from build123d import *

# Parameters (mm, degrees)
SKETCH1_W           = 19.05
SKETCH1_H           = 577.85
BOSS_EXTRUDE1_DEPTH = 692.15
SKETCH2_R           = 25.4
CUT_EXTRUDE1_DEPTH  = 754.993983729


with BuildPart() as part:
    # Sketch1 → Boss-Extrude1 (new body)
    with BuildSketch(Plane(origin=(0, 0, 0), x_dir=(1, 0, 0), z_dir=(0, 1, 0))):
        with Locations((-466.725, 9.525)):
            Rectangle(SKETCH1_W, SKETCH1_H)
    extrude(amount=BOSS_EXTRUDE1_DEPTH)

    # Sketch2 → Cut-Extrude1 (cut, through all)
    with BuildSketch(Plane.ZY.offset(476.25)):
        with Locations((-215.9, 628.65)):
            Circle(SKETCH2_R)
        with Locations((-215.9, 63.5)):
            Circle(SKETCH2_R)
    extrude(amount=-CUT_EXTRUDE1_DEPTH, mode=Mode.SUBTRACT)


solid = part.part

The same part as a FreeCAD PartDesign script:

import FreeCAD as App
import Part
import Sketcher

V = App.Vector
Q = App.Units.Quantity

doc = App.newDocument("Part")
body = doc.addObject("PartDesign::Body", "Body")

# Sketch on XZ plane
sketch1 = body.newObject("Sketcher::SketchObject", "Sketch")
sketch1.AttachmentSupport = (doc.getObject("XZ_Plane"), [""])
sketch1.MapMode = "FlatFace"
sketch1.addGeometry([
    Part.LineSegment(V(-476.25, -298.45, 0), V(-476.25, 279.4, 0)),
    Part.LineSegment(V(-476.25, 279.4, 0), V(-457.2, 279.4, 0)),
    Part.LineSegment(V(-457.2, 279.4, 0), V(-457.2, -298.45, 0)),
    Part.LineSegment(V(-457.2, -298.45, 0), V(-476.25, -298.45, 0)),
], False)
sketch1.addConstraint([
    Sketcher.Constraint("Coincident", 0, 2, 1, 1),
    Sketcher.Constraint("Coincident", 1, 2, 2, 1),
    Sketcher.Constraint("Coincident", 2, 2, 3, 1),
    Sketcher.Constraint("Coincident", 3, 2, 0, 1),
    Sketcher.Constraint("Vertical", 0),
    Sketcher.Constraint("Horizontal", 1),
    Sketcher.Constraint("Vertical", 2),
    Sketcher.Constraint("Horizontal", 3),
    Sketcher.Constraint("DistanceY", -1, 1, 0, 2, Q("11 in")),
    Sketcher.Constraint("DistanceX", 1, 2, -1, 1, Q("18 in")),
    Sketcher.Constraint("DistanceX", 1, 1, 1, 2, Q("0.75 in")),
    Sketcher.Constraint("DistanceY", 0, 1, 0, 2, Q("22.75 in")),
])
pad1 = body.newObject("PartDesign::Pad", "Pad")
pad1.Profile = sketch1
pad1.Length = Q("27.25 in")
pad1.Reversed = True

# Sketch on YZ plane
sketch2 = body.newObject("Sketcher::SketchObject", "Sketch001")
sketch2.AttachmentSupport = (doc.getObject("YZ_Plane"), [""])
sketch2.MapMode = "FlatFace"
sketch2.AttachmentOffset = App.Placement(V(0, 0, -18.75 * 25.4), App.Rotation())
sketch2.addGeometry([
    Part.Circle(V(628.65, -215.9, 0), V(0, 0, 1), 25.4),
    Part.Circle(V(63.5, -215.9, 0), V(0, 0, 1), 25.4),
], False)
sketch2.addConstraint([
    Sketcher.Constraint("Equal", 0, 1),
    Sketcher.Constraint("Horizontal", 0, 3, 1, 3),
    Sketcher.Constraint("Diameter", 0, Q("2 in")),
    Sketcher.Constraint("DistanceY", 0, 3, -1, 1, Q("8.5 in")),
    Sketcher.Constraint("DistanceX", -1, 1, 1, 3, Q("2.5 in")),
    Sketcher.Constraint("DistanceX", -1, 1, 0, 3, Q("24.75 in")),
])
pocket1 = body.newObject("PartDesign::Pocket", "Pocket")
pocket1.Profile = sketch2
pocket1.Type = "ThroughAll"
pocket1.Reversed = True

doc.recompute()
